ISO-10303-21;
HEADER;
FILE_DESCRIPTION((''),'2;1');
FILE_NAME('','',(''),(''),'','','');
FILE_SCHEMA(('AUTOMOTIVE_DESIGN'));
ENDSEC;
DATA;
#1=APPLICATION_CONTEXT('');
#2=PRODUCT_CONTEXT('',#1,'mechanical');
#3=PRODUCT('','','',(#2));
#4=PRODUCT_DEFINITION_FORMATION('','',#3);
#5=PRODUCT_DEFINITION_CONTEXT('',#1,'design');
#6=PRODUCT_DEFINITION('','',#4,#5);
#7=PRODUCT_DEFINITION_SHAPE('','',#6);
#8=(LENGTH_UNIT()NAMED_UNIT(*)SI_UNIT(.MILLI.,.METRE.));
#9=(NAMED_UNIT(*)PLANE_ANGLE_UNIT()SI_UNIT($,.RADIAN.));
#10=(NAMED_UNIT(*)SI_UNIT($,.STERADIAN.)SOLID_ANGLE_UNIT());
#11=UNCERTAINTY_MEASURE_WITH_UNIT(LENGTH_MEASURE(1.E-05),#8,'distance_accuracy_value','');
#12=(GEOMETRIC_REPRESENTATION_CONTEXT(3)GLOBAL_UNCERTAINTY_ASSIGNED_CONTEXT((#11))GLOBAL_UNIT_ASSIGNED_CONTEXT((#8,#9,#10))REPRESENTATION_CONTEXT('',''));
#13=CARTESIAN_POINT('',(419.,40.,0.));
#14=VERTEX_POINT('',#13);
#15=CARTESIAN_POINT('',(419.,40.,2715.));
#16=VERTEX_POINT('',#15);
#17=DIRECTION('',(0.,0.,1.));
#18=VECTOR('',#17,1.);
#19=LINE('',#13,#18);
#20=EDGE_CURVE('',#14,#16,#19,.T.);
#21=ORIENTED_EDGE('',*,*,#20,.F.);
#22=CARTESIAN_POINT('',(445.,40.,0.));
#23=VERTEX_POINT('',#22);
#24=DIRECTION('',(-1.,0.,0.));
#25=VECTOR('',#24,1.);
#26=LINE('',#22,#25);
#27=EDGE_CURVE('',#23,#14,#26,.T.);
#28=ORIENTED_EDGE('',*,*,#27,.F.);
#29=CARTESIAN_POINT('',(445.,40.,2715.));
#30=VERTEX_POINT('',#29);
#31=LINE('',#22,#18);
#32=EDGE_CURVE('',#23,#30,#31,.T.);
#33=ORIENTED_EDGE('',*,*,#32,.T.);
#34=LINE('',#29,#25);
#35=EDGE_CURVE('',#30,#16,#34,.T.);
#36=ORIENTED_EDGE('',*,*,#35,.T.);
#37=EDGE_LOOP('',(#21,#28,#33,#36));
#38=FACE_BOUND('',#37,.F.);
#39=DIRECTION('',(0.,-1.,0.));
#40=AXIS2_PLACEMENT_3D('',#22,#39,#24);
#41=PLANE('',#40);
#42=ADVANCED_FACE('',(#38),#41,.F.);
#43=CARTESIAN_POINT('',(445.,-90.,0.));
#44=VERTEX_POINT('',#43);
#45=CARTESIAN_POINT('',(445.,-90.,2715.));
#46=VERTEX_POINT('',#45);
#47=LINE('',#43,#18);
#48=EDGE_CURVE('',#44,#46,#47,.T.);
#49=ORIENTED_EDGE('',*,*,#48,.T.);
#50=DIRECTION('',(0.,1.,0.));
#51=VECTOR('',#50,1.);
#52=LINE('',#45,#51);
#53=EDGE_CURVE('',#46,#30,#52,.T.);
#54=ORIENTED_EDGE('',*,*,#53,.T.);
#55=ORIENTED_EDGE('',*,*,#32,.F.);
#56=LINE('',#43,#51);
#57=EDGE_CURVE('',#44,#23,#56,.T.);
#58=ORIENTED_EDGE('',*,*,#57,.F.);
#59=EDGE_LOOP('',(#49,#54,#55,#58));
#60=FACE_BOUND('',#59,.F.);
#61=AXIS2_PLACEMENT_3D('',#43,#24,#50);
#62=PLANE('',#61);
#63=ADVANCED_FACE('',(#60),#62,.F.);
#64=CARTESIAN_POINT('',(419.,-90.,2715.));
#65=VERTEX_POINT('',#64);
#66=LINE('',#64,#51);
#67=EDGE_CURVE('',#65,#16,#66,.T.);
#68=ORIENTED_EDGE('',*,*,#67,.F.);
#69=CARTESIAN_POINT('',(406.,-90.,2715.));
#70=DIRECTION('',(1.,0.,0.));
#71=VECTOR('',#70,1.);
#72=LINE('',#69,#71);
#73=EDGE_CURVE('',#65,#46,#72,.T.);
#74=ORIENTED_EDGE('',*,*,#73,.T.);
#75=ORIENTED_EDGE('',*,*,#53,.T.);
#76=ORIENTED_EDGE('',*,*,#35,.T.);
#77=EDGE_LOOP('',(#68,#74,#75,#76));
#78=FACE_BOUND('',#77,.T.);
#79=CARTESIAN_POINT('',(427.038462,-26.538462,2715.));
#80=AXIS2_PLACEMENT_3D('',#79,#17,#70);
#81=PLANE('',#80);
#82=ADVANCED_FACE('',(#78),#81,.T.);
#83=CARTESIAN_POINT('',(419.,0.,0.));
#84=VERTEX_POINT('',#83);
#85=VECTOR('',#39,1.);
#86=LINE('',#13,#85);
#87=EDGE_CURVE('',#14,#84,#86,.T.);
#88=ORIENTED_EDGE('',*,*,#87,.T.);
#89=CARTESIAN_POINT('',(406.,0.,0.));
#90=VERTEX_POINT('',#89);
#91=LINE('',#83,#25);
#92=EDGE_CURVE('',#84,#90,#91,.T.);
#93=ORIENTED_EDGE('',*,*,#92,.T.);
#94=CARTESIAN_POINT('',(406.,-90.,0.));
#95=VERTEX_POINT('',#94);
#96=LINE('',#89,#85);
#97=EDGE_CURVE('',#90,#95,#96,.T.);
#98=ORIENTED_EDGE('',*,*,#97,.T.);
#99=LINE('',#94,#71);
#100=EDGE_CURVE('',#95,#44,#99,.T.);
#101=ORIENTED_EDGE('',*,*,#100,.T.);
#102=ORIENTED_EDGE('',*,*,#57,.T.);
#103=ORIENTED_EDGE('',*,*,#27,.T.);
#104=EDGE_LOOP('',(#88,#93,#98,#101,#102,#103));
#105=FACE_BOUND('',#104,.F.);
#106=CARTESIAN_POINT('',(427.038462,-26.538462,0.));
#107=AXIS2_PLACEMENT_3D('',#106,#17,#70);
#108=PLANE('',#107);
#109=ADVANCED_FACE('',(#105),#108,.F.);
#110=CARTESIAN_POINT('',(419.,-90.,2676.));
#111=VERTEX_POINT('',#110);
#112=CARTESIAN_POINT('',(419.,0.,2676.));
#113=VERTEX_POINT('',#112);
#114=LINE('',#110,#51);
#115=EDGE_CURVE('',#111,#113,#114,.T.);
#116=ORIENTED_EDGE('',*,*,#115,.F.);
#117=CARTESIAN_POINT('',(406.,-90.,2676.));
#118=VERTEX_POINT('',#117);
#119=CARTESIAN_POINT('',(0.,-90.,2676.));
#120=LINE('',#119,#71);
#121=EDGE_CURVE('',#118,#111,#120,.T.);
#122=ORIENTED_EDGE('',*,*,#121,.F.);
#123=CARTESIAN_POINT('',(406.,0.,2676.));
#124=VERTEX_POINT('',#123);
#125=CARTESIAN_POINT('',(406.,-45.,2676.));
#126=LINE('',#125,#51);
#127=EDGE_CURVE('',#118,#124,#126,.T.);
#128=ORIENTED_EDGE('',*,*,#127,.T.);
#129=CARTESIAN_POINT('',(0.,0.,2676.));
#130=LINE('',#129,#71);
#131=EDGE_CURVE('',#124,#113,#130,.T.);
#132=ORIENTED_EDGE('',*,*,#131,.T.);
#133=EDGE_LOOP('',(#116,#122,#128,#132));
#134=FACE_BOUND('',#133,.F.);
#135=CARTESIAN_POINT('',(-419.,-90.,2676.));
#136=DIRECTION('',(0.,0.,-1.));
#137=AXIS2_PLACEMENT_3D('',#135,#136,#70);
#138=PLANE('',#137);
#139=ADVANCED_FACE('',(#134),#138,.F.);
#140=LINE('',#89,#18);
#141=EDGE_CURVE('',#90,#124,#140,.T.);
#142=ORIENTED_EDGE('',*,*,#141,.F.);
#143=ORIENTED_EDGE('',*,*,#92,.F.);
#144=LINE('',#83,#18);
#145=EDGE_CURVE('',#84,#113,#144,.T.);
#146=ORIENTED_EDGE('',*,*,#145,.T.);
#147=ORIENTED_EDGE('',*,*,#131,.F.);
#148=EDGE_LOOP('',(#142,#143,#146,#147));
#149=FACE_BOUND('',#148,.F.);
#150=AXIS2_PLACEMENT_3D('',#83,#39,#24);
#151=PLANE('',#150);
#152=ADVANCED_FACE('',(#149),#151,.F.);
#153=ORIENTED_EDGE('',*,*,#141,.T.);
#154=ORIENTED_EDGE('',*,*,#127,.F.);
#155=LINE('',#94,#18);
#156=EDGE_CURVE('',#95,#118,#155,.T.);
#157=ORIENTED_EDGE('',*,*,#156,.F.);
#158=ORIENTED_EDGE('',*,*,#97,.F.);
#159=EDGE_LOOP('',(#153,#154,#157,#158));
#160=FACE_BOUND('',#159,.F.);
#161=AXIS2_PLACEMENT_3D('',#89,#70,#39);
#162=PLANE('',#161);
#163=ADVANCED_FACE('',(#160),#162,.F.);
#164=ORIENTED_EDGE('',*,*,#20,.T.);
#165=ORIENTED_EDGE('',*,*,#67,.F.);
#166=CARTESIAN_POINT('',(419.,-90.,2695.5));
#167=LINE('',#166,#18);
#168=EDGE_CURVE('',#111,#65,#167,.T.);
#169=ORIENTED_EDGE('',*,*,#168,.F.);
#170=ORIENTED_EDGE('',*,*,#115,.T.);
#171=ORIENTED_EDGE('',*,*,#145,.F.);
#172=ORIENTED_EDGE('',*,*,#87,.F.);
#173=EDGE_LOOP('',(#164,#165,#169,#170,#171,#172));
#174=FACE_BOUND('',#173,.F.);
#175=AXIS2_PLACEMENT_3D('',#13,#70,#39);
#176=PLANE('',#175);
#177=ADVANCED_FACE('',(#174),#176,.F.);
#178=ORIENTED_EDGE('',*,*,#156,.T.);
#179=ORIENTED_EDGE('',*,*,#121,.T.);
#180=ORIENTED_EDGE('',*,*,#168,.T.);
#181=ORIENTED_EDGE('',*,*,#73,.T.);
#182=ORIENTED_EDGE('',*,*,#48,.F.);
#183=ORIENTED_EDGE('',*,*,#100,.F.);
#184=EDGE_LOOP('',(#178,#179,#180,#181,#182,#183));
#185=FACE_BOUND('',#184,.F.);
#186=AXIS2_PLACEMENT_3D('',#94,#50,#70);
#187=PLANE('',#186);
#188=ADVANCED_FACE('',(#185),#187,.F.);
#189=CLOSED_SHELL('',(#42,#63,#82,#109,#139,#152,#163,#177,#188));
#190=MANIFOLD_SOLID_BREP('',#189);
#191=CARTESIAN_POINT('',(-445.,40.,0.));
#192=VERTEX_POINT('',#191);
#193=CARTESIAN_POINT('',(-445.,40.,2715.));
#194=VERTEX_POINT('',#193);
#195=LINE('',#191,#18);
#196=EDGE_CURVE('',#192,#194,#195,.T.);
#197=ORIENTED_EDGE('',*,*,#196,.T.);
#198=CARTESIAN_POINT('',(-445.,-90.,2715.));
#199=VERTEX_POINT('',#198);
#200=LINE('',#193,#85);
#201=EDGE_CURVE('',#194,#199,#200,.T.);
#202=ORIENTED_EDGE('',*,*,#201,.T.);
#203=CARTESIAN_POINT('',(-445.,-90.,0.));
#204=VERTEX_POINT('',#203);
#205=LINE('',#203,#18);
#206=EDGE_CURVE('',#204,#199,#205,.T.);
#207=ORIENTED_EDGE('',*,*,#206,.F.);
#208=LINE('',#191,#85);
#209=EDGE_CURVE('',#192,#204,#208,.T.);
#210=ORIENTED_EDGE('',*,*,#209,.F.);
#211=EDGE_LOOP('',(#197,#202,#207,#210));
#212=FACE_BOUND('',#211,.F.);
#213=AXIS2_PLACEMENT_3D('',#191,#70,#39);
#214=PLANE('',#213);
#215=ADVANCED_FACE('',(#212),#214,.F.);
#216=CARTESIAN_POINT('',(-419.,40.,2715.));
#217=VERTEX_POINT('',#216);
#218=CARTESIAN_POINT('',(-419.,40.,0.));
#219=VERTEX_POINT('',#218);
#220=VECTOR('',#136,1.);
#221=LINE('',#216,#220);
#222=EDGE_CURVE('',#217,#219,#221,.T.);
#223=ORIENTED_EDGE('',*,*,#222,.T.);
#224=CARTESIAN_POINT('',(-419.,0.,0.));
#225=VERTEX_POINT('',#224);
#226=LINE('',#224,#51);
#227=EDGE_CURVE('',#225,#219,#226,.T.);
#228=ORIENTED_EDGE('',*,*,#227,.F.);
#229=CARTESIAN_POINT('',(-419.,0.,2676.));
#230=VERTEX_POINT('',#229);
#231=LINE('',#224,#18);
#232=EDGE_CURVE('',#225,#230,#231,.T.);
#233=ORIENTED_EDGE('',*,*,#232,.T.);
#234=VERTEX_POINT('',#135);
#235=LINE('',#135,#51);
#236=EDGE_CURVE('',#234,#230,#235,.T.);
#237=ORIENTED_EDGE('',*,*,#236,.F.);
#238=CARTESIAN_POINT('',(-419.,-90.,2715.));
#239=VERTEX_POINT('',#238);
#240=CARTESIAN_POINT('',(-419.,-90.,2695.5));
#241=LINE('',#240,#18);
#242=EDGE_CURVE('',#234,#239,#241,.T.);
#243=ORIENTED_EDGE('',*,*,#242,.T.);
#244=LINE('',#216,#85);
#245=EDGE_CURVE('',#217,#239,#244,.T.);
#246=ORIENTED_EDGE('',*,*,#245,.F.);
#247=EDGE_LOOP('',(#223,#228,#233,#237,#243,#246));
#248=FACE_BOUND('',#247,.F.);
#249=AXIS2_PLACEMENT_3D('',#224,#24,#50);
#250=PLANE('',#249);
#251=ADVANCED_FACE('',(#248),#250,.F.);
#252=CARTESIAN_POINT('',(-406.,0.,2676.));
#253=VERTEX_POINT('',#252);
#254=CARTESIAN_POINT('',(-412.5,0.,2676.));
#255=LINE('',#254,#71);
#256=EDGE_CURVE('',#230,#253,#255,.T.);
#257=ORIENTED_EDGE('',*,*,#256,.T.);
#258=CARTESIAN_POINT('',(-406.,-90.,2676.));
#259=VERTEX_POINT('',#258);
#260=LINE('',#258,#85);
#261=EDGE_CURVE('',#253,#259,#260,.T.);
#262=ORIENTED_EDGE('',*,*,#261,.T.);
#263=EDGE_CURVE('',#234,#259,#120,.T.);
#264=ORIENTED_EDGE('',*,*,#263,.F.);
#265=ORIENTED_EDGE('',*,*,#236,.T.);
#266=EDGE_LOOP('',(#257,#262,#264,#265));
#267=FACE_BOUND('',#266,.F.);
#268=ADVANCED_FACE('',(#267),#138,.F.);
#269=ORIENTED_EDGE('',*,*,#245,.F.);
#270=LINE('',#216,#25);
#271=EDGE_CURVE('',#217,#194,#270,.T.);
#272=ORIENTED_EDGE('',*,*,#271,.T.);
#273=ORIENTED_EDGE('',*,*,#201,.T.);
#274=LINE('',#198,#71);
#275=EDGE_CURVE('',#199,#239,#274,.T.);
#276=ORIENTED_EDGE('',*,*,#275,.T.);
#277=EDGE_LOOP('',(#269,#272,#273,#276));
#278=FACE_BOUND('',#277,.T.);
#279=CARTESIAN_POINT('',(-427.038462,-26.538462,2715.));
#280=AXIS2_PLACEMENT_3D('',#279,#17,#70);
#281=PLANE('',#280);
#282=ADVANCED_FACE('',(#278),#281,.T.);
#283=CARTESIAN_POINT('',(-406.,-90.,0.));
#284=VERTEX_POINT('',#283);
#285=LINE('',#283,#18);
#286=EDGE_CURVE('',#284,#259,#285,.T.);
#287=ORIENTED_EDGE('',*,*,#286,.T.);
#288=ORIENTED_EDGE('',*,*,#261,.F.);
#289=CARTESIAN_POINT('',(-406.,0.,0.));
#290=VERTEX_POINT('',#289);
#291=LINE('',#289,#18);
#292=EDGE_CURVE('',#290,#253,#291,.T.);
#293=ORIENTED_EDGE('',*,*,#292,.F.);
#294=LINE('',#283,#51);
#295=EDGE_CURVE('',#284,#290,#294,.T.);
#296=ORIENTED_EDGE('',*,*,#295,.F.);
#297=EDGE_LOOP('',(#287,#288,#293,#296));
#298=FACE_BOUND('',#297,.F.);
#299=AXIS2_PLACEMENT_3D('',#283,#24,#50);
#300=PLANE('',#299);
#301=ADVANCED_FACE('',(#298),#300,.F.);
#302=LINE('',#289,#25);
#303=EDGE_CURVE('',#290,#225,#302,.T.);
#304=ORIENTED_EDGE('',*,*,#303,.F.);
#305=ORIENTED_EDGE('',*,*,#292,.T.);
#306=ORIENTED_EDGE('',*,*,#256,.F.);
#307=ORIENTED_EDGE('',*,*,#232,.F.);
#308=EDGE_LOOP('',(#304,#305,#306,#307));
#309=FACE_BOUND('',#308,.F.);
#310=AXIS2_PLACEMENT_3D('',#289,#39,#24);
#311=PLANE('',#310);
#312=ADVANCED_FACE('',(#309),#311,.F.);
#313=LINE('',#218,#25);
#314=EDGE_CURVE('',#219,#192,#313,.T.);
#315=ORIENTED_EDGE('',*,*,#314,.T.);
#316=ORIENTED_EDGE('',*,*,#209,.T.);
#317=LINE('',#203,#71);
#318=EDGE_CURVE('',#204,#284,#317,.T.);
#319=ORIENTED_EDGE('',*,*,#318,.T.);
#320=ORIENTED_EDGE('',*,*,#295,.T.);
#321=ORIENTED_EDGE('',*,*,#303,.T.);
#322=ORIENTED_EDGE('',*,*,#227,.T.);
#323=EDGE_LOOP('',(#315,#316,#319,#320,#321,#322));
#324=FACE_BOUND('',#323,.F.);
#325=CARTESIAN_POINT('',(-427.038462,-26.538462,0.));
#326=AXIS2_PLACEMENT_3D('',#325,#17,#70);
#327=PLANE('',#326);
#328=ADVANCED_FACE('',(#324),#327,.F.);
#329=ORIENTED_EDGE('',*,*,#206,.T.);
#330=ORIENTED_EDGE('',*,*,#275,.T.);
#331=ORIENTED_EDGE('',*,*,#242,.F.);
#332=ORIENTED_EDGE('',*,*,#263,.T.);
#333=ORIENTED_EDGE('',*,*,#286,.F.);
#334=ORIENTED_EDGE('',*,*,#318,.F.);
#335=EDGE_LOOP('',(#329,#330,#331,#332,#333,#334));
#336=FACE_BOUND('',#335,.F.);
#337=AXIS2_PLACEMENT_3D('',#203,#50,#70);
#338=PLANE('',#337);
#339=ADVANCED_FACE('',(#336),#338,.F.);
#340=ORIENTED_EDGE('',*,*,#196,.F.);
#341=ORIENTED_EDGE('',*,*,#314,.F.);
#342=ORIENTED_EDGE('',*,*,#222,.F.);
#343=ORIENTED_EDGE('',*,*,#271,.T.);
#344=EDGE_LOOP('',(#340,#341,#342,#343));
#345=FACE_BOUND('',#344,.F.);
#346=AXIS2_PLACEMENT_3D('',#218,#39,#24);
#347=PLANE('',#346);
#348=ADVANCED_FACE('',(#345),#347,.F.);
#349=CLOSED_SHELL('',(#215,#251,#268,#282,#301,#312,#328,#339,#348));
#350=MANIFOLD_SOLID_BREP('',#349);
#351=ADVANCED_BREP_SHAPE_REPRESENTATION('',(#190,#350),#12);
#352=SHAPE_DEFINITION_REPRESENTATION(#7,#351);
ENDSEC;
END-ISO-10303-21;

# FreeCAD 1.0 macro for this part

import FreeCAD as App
import Part
import Sketcher
from FreeCAD import Vector
Q = App.Units.Quantity

doc = App.newDocument("Part")
params = doc.addObject("Spreadsheet::Sheet", "Params")
for row, (alias, value) in enumerate([
    ("sketch1_width", "26 mm"),
    ("sketch1_width2", "39 mm"),
    ("sketch1_height", "130 mm"),
    ("sketch1_height2", "90 mm"),
    ("pad1_length", "2715 mm"),
    ("sketch2_width", "838 mm"),
    ("sketch2_height", "39 mm"),
    ("pocket1_length", "130 mm"),
], start=1):
    params.set(f"A{row}", alias)
    params.set(f"B{row}", "=" + value)
    params.setAlias(f"B{row}", alias)

body = doc.addObject("PartDesign::Body", "Body")
body.AllowCompound = True

# Sketch on XY plane
sketch1 = body.newObject("Sketcher::SketchObject", "Sketch")
sketch1.AttachmentSupport = (doc.getObject("XY_Plane"), [""])
sketch1.MapMode = "FlatFace"
sketch1.addGeometry(Part.LineSegment(Vector(-419, 40, 0), Vector(-445, 40, 0)), False)
sketch1.addGeometry(Part.LineSegment(Vector(-445, 40, 0), Vector(-445, -90, 0)), False)
sketch1.addGeometry(Part.LineSegment(Vector(-445, -90, 0), Vector(-406, -90, 0)), False)
sketch1.addGeometry(Part.LineSegment(Vector(-406, -90, 0), Vector(-406, 0, 0)), False)
sketch1.addGeometry(Part.LineSegment(Vector(-406, 0, 0), Vector(-419, 0, 0)), False)
sketch1.addGeometry(Part.LineSegment(Vector(-419, 0, 0), Vector(-419, 40, 0)), False)
sketch1.addGeometry(Part.LineSegment(Vector(445, 40, 0), Vector(419, 40, 0)), False)
sketch1.addGeometry(Part.LineSegment(Vector(419, 40, 0), Vector(419, 0, 0)), False)
sketch1.addGeometry(Part.LineSegment(Vector(419, 0, 0), Vector(406, 0, 0)), False)
sketch1.addGeometry(Part.LineSegment(Vector(406, 0, 0), Vector(406, -90, 0)), False)
sketch1.addGeometry(Part.LineSegment(Vector(406, -90, 0), Vector(445, -90, 0)), False)
sketch1.addGeometry(Part.LineSegment(Vector(445, -90, 0), Vector(445, 40, 0)), False)
sketch1.addConstraint(Sketcher.Constraint("Coincident", 0, 2, 1, 1))
sketch1.addConstraint(Sketcher.Constraint("Coincident", 1, 2, 2, 1))
sketch1.addConstraint(Sketcher.Constraint("Coincident", 2, 2, 3, 1))
sketch1.addConstraint(Sketcher.Constraint("Coincident", 3, 2, 4, 1))
sketch1.addConstraint(Sketcher.Constraint("Coincident", 4, 2, 5, 1))
sketch1.addConstraint(Sketcher.Constraint("Coincident", 5, 2, 0, 1))
sketch1.addConstraint(Sketcher.Constraint("Coincident", 6, 2, 7, 1))
sketch1.addConstraint(Sketcher.Constraint("Coincident", 7, 2, 8, 1))
sketch1.addConstraint(Sketcher.Constraint("Coincident", 8, 2, 9, 1))
sketch1.addConstraint(Sketcher.Constraint("Coincident", 9, 2, 10, 1))
sketch1.addConstraint(Sketcher.Constraint("Coincident", 10, 2, 11, 1))
sketch1.addConstraint(Sketcher.Constraint("Coincident", 11, 2, 6, 1))
sketch1.addConstraint(Sketcher.Constraint("Horizontal", 0))
sketch1.addConstraint(Sketcher.Constraint("Vertical", 1))
sketch1.addConstraint(Sketcher.Constraint("Horizontal", 2))
sketch1.addConstraint(Sketcher.Constraint("Vertical", 3))
sketch1.addConstraint(Sketcher.Constraint("Horizontal", 4))
sketch1.addConstraint(Sketcher.Constraint("Vertical", 5))
sketch1.addConstraint(Sketcher.Constraint("Horizontal", 6))
sketch1.addConstraint(Sketcher.Constraint("Vertical", 7))
sketch1.addConstraint(Sketcher.Constraint("Horizontal", 8))
sketch1.addConstraint(Sketcher.Constraint("Vertical", 9))
sketch1.addConstraint(Sketcher.Constraint("Horizontal", 10))
sketch1.addConstraint(Sketcher.Constraint("Vertical", 11))
sketch1.addConstraint(Sketcher.Constraint("Symmetric", 4, 2, 7, 2, -1, 1))
sketch1.addConstraint(Sketcher.Constraint("Symmetric", 3, 2, 8, 2, -2))
sketch1.addConstraint(Sketcher.Constraint("Symmetric", 1, 2, 10, 2, -2))
sketch1.addConstraint(Sketcher.Constraint("Horizontal", 5, 2, 6, 2))
sketch1.addConstraint(Sketcher.Constraint("DistanceX", 0, 2, 0, 1, Q("26 mm")))
sketch1.addConstraint(Sketcher.Constraint("DistanceX", 2, 1, 2, 2, Q("39 mm")))
sketch1.addConstraint(Sketcher.Constraint("DistanceY", 1, 2, 1, 1, Q("130 mm")))
sketch1.addConstraint(Sketcher.Constraint("DistanceY", 3, 1, 3, 2, Q("90 mm")))
sketch1.addConstraint(Sketcher.Constraint("DistanceX", 0, 2, -1, 1, Q("445 mm")))
sketch1.setExpression("Constraints[28]", "Params.sketch1_width")
sketch1.setExpression("Constraints[29]", "Params.sketch1_width2")
sketch1.setExpression("Constraints[30]", "Params.sketch1_height")
sketch1.setExpression("Constraints[31]", "Params.sketch1_height2")
pad1 = body.newObject("PartDesign::Pad", "Pad")
pad1.Profile = sketch1
pad1.setExpression("Length", "Params.pad1_length")

# Sketch on XZ plane
sketch2 = body.newObject("Sketcher::SketchObject", "Sketch001")
sketch2.AttachmentSupport = (doc.getObject("XZ_Plane"), [""])
sketch2.MapMode = "FlatFace"
sketch2.AttachmentOffset = App.Placement(Vector(0, 0, 90), App.Rotation())
sketch2.addGeometry(Part.LineSegment(Vector(-419, 2715, 0), Vector(-419, 2676, 0)), False)
sketch2.addGeometry(Part.LineSegment(Vector(-419, 2676, 0), Vector(419, 2676, 0)), False)
sketch2.addGeometry(Part.LineSegment(Vector(419, 2676, 0), Vector(419, 2715, 0)), False)
sketch2.addGeometry(Part.LineSegment(Vector(419, 2715, 0), Vector(-419, 2715, 0)), False)
sketch2.addConstraint(Sketcher.Constraint("Coincident", 0, 2, 1, 1))
sketch2.addConstraint(Sketcher.Constraint("Coincident", 1, 2, 2, 1))
sketch2.addConstraint(Sketcher.Constraint("Coincident", 2, 2, 3, 1))
sketch2.addConstraint(Sketcher.Constraint("Coincident", 3, 2, 0, 1))
sketch2.addConstraint(Sketcher.Constraint("Vertical", 0))
sketch2.addConstraint(Sketcher.Constraint("Horizontal", 1))
sketch2.addConstraint(Sketcher.Constraint("Vertical", 2))
sketch2.addConstraint(Sketcher.Constraint("Horizontal", 3))
sketch2.addConstraint(Sketcher.Constraint("DistanceX", 1, 1, 1, 2, Q("838 mm")))
sketch2.addConstraint(Sketcher.Constraint("DistanceY", 0, 2, 0, 1, Q("39 mm")))
sketch2.addConstraint(Sketcher.Constraint("DistanceX", 0, 2, -1, 1, Q("419 mm")))
sketch2.addConstraint(Sketcher.Constraint("DistanceY", -1, 1, 0, 2, Q("2676 mm")))
sketch2.setExpression("Constraints[8]", "Params.sketch2_width")
sketch2.setExpression("Constraints[9]", "Params.sketch2_height")
pocket1 = body.newObject("PartDesign::Pocket", "Pocket")
pocket1.Profile = sketch2
pocket1.setExpression("Length", "Params.pocket1_length")

doc.recompute()
